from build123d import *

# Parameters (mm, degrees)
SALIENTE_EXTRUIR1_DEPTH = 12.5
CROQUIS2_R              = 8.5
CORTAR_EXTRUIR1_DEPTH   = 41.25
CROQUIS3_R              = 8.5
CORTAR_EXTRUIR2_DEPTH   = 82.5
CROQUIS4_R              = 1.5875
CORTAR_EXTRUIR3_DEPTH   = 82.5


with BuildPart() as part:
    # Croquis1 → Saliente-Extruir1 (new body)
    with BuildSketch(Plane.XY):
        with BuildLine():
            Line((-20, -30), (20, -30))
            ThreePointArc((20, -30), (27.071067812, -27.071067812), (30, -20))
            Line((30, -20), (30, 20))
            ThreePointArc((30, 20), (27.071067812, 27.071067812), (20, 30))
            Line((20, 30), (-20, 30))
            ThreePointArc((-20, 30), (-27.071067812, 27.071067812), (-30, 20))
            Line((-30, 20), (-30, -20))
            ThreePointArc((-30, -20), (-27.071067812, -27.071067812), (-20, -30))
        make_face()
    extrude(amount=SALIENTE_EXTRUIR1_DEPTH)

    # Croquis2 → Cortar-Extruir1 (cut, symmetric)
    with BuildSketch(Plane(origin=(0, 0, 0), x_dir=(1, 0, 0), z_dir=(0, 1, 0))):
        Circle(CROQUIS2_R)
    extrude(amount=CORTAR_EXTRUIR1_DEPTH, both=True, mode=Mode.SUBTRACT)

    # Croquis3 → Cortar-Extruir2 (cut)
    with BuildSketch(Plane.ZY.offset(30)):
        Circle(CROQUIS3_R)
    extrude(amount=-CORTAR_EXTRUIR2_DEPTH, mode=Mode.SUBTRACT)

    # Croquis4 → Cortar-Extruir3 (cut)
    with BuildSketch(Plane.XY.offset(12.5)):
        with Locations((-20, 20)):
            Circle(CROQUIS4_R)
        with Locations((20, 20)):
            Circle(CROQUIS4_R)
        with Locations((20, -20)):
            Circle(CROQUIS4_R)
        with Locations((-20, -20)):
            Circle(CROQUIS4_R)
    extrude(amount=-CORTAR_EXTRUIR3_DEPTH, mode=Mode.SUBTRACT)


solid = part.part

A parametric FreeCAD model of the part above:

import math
import FreeCAD as App
import Part
import Sketcher

V = App.Vector
Q = App.Units.Quantity

doc = App.newDocument("Part")
body = doc.addObject("PartDesign::Body", "Body")

# Sketch on XY plane
sketch1 = body.newObject("Sketcher::SketchObject", "Sketch")
sketch1.AttachmentSupport = (doc.getObject("XY_Plane"), [""])
sketch1.MapMode = "FlatFace"
sketch1.addGeometry([
    Part.LineSegment(V(-20, -30, 0), V(20, -30, 0)),  # 0
    Part.ArcOfCircle(Part.Circle(V(20, -20, 0), V(0, 0, 1), 10), math.radians(-90), math.radians(0)),  # 1
    Part.LineSegment(V(30, -20, 0), V(30, 20, 0)),  # 2
    Part.ArcOfCircle(Part.Circle(V(20, 20, 0), V(0, 0, 1), 10), math.radians(0), math.radians(90)),  # 3
    Part.LineSegment(V(20, 30, 0), V(-20, 30, 0)),  # 4
    Part.ArcOfCircle(Part.Circle(V(-20, 20, 0), V(0, 0, 1), 10), math.radians(90), math.radians(180)),  # 5
    Part.LineSegment(V(-30, 20, 0), V(-30, -20, 0)),  # 6
    Part.ArcOfCircle(Part.Circle(V(-20, -20, 0), V(0, 0, 1), 10), math.radians(180), math.radians(270)),  # 7
], False)
sketch1.addConstraint([
    Sketcher.Constraint("Tangent", 0, 2, 1, 1),
    Sketcher.Constraint("Tangent", 1, 2, 2, 1),
    Sketcher.Constraint("Tangent", 2, 2, 3, 1),
    Sketcher.Constraint("Tangent", 3, 2, 4, 1),
    Sketcher.Constraint("Tangent", 4, 2, 5, 1),
    Sketcher.Constraint("Tangent", 5, 2, 6, 1),
    Sketcher.Constraint("Tangent", 6, 2, 7, 1),
    Sketcher.Constraint("Tangent", 7, 2, 0, 1),
    Sketcher.Constraint("Horizontal", 0),
    Sketcher.Constraint("Vertical", 2),
    Sketcher.Constraint("Horizontal", 4),
    Sketcher.Constraint("Vertical", 6),
    Sketcher.Constraint("Equal", 1, 3),
    Sketcher.Constraint("Equal", 3, 5),
    Sketcher.Constraint("Equal", 5, 7),
    Sketcher.Constraint("Symmetric", 1, 3, 5, 3, -1, 1),
    Sketcher.Constraint("Equal", 4, 2),
    Sketcher.Constraint("Radius", 1, Q("10 mm")),
    Sketcher.Constraint("DistanceX", 0, 1, 0, 2, Q("40 mm")),
])
pad1 = body.newObject("PartDesign::Pad", "Pad")
pad1.Profile = sketch1
pad1.Length = 12.5

# Sketch on XZ plane
sketch2 = body.newObject("Sketcher::SketchObject", "Sketch001")
sketch2.AttachmentSupport = (doc.getObject("XZ_Plane"), [""])
sketch2.MapMode = "FlatFace"
sketch2.addGeometry(Part.Circle(V(0, 0, 0), V(0, 0, 1), 8), False)
sketch2.addConstraint([
    Sketcher.Constraint("Coincident", 0, 3, -1, 1),
    Sketcher.Constraint("Diameter", 0, Q("17 mm")),
])
pocket1 = body.newObject("PartDesign::Pocket", "Pocket")
pocket1.Profile = sketch2
pocket1.Length = 82.5
pocket1.Midplane = True

# Sketch on YZ plane
sketch3 = body.newObject("Sketcher::SketchObject", "Sketch002")
sketch3.AttachmentSupport = (doc.getObject("YZ_Plane"), [""])
sketch3.MapMode = "FlatFace"
sketch3.AttachmentOffset = App.Placement(V(0, 0, -30), App.Rotation())
sketch3.addGeometry(Part.Circle(V(0, 0, 0), V(0, 0, 1), 8), False)
sketch3.addConstraint([
    Sketcher.Constraint("Coincident", 0, 3, -1, 1),
    Sketcher.Constraint("Diameter", 0, Q("17 mm")),
])
pocket2 = body.newObject("PartDesign::Pocket", "Pocket001")
pocket2.Profile = sketch3
pocket2.Length = 82.5
pocket2.Reversed = True

# Sketch on XY plane
sketch4 = body.newObject("Sketcher::SketchObject", "Sketch003")
sketch4.AttachmentSupport = (doc.getObject("XY_Plane"), [""])
sketch4.MapMode = "FlatFace"
sketch4.AttachmentOffset = App.Placement(V(0, 0, 12.5), App.Rotation())
sketch4.addGeometry([
    Part.Circle(V(-20, 20, 0), V(0, 0, 1), 1.6),
    Part.Circle(V(20, 20, 0), V(0, 0, 1), 1.6),
    Part.Circle(V(20, -20, 0), V(0, 0, 1), 1.6),
    Part.Circle(V(-20, -20, 0), V(0, 0, 1), 1.6),
], False)
sketch4.addConstraint([
    Sketcher.Constraint("Equal", 0, 1),
    Sketcher.Constraint("Equal", 1, 2),
    Sketcher.Constraint("Equal", 2, 3),
    Sketcher.Constraint("Symmetric", 0, 3, 2, 3, -1, 1),
    Sketcher.Constraint("Symmetric", 1, 3, 3, 3, -1, 1),
    Sketcher.Constraint("Symmetric", 0, 3, 1, 3, -2),
    Sketcher.Constraint("Diameter", 0, Q("3.175 mm")),
    Sketcher.Constraint("DistanceX", 0, 3, -1, 1, Q("20 mm")),
    Sketcher.Constraint("DistanceY", -1, 1, 0, 3, Q("20 mm")),
])
pocket3 = body.newObject("PartDesign::Pocket", "Pocket002")
pocket3.Profile = sketch4
pocket3.Length = 82.5

doc.recompute()
